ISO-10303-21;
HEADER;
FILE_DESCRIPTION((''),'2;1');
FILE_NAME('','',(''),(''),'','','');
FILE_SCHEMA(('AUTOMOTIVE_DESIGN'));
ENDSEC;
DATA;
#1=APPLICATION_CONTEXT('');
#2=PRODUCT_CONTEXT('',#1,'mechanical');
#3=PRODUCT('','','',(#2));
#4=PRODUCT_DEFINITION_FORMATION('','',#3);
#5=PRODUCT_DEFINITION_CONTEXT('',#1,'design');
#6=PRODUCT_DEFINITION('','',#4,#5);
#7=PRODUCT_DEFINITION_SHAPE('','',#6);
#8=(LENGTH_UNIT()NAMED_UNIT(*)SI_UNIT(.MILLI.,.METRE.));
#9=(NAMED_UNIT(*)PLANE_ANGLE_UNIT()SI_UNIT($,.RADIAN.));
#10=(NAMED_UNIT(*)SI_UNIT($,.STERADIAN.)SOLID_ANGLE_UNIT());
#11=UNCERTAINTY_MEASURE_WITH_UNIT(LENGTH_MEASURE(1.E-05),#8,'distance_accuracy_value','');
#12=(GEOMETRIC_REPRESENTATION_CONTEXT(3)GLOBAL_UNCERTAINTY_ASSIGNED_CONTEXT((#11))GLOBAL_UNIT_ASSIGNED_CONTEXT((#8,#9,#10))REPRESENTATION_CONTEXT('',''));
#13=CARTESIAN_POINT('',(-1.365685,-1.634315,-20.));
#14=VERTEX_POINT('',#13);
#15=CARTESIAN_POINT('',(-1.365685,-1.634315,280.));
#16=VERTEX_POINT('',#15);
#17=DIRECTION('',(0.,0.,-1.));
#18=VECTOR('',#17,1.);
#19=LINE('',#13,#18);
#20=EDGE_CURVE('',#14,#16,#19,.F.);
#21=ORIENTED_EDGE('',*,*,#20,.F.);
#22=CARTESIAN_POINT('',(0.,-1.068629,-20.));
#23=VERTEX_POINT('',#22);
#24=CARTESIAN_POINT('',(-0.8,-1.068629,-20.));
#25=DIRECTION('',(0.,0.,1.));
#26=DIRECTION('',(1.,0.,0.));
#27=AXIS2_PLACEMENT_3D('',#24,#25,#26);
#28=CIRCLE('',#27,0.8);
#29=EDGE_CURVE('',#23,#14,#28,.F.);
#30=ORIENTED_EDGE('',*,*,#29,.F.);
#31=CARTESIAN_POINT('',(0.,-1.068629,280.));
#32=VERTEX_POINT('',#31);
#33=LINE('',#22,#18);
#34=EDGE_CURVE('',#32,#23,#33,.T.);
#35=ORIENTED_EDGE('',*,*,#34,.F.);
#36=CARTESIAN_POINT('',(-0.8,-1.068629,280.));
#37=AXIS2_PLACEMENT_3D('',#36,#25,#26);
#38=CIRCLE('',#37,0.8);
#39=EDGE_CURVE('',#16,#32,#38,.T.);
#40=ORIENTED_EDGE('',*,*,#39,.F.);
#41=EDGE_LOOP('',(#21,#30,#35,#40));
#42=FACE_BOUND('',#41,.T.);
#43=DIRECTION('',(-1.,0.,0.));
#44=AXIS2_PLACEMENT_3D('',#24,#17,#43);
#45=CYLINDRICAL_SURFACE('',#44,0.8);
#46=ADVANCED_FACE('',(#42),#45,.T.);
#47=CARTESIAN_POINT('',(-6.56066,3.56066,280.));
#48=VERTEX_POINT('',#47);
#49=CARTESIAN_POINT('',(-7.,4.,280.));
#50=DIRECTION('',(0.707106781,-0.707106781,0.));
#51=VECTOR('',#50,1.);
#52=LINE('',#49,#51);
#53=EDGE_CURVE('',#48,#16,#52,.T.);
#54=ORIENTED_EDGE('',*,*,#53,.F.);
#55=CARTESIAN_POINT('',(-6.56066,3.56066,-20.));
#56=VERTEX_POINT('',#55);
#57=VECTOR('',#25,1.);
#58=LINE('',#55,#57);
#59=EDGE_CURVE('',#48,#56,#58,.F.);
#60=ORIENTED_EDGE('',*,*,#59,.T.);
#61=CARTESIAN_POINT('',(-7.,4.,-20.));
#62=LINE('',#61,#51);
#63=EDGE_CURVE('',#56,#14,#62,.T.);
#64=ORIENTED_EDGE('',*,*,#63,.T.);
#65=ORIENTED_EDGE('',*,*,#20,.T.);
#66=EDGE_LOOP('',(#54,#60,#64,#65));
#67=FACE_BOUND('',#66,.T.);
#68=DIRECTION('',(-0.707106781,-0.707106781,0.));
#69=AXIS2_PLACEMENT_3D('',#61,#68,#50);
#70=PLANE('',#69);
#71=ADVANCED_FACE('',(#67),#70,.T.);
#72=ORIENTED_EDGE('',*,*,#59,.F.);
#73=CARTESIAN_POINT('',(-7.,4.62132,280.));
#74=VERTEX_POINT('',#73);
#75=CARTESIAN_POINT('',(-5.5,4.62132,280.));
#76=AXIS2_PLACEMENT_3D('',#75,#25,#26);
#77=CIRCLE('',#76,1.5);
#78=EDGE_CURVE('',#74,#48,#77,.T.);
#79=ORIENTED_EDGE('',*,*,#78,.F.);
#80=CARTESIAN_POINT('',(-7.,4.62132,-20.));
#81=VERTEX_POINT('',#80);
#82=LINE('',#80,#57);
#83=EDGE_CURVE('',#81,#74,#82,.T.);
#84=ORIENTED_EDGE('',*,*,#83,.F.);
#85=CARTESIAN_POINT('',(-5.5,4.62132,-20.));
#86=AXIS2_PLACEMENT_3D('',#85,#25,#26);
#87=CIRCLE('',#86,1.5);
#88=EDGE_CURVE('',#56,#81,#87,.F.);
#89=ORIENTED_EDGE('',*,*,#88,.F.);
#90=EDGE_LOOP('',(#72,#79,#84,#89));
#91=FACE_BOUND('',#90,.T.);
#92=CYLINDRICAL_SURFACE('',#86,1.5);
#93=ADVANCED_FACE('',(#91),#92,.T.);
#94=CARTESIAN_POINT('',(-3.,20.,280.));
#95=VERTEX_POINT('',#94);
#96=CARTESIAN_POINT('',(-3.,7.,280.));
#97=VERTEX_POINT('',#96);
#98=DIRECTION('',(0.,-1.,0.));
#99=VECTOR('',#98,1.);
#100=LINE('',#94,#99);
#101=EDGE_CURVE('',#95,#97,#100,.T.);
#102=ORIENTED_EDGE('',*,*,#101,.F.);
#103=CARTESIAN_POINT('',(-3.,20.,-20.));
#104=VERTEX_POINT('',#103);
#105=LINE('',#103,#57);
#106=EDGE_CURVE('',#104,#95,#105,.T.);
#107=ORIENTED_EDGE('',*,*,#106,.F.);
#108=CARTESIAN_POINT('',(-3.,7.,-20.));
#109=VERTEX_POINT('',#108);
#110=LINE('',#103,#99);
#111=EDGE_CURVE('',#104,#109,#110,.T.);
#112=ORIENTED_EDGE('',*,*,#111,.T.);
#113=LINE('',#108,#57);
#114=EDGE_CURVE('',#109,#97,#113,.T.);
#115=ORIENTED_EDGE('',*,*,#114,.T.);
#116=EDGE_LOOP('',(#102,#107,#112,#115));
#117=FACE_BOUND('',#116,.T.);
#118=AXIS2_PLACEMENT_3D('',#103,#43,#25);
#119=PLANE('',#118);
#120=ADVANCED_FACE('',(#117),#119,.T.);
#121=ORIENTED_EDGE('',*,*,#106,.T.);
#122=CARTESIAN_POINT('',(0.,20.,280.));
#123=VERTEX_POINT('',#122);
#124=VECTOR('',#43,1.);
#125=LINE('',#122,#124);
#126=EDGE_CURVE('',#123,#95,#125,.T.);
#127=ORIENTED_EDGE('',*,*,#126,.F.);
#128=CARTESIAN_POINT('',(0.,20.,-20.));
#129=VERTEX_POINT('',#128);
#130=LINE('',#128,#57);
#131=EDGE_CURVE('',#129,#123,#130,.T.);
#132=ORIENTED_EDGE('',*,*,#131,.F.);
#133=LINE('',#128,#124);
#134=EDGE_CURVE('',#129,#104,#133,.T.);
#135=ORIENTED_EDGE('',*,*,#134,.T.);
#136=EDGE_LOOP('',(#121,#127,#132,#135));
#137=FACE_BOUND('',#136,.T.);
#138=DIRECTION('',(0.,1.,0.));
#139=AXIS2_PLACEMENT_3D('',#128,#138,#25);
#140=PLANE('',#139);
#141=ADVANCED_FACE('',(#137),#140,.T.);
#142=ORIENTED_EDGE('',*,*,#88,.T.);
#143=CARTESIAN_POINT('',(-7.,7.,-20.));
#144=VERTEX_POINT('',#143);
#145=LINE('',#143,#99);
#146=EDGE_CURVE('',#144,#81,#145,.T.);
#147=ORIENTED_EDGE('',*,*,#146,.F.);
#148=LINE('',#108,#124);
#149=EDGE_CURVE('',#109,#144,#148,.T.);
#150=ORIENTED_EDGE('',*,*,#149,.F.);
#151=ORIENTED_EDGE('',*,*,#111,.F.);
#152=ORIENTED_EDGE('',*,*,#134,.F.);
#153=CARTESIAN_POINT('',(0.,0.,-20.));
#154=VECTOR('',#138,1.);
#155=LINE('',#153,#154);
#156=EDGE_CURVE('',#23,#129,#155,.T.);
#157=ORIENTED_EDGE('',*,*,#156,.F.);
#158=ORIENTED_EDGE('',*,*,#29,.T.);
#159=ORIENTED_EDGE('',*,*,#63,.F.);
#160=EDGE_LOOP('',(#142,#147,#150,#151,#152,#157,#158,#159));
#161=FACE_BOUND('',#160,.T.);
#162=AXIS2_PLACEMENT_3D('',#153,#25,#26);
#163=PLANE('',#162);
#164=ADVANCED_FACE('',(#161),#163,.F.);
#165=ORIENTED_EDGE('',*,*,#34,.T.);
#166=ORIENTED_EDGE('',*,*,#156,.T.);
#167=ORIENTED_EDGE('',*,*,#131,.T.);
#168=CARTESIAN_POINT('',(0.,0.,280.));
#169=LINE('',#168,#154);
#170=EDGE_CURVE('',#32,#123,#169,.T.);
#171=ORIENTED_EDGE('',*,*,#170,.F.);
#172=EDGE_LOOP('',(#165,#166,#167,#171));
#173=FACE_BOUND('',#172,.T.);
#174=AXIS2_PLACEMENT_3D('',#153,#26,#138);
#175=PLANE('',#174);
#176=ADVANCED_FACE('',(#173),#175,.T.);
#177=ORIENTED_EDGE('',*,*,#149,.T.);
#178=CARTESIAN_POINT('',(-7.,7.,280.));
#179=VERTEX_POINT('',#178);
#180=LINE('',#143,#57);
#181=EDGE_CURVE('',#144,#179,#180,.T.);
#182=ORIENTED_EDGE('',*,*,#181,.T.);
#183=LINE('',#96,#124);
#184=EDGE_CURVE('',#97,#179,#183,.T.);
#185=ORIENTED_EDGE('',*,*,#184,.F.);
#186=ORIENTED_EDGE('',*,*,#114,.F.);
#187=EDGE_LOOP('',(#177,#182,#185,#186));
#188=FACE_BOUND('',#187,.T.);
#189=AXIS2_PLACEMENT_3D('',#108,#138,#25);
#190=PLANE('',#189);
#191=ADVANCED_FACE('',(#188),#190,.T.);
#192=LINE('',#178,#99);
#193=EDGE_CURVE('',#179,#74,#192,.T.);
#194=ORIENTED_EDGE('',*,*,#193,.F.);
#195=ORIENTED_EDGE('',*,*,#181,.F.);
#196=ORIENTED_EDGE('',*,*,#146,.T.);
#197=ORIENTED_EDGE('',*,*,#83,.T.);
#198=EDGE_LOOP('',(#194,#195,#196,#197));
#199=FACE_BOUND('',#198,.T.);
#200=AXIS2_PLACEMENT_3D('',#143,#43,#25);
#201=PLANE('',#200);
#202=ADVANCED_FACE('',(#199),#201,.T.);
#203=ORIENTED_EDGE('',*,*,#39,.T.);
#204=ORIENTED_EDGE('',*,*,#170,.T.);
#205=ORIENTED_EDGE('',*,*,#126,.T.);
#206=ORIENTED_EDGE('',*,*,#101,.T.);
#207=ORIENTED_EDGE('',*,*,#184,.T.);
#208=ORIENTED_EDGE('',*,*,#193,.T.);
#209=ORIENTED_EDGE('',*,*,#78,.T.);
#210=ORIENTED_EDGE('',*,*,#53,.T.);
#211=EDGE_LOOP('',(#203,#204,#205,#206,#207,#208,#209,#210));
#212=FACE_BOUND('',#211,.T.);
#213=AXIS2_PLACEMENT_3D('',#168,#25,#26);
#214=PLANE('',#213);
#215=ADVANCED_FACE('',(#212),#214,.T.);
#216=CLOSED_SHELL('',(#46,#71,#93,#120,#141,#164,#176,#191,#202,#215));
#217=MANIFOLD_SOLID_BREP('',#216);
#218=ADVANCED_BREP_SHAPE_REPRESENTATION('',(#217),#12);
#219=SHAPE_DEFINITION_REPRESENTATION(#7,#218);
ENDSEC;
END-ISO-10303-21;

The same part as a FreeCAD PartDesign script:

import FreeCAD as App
import Part
import Sketcher
from FreeCAD import Vector
Q = App.Units.Quantity


def edges_at(feature, points):
    """Names of the edges that pass closest to the given points."""
    edges = feature.Shape.Edges
    near = lambda p: min(range(len(edges)), key=lambda i: edges[i].distToShape(Part.Vertex(*p))[0])
    return sorted({f"Edge{near(p) + 1}" for p in points})

doc = App.newDocument("Part")
body = doc.addObject("PartDesign::Body", "Body")

# Sketch on XY plane
sketch1 = body.newObject("Sketcher::SketchObject", "Sketch")
sketch1.AttachmentSupport = (doc.getObject("XY_Plane"), [""])
sketch1.MapMode = "FlatFace"
sketch1.AttachmentOffset = App.Placement(Vector(0, 0, 280), App.Rotation())
sketch1.addGeometry([
    Part.LineSegment(Vector(-7, 4, 0), Vector(4, -7, 0)),  # 0
    Part.LineSegment(Vector(4, -7, 0), Vector(7, -7, 0)),  # 1
    Part.LineSegment(Vector(7, -7, 0), Vector(7, -3, 0)),  # 2
    Part.LineSegment(Vector(7, -3, 0), Vector(20, -3, 0)),  # 3
    Part.LineSegment(Vector(20, -3, 0), Vector(20, 0, 0)),  # 4
    Part.LineSegment(Vector(20, 0, 0), Vector(0, 0, 0)),  # 5
    Part.LineSegment(Vector(0, 0, 0), Vector(0, 20, 0)),  # 6
    Part.LineSegment(Vector(0, 20, 0), Vector(-3, 20, 0)),  # 7
    Part.LineSegment(Vector(-3, 20, 0), Vector(-3, 7, 0)),  # 8
    Part.LineSegment(Vector(-3, 7, 0), Vector(-7, 7, 0)),  # 9
    Part.LineSegment(Vector(-7, 7, 0), Vector(-7, 4, 0)),  # 10
], False)
sketch1.addConstraint([
    Sketcher.Constraint("Coincident", 0, 2, 1, 1),
    Sketcher.Constraint("Coincident", 1, 2, 2, 1),
    Sketcher.Constraint("Coincident", 2, 2, 3, 1),
    Sketcher.Constraint("Coincident", 3, 2, 4, 1),
    Sketcher.Constraint("Coincident", 4, 2, 5, 1),
    Sketcher.Constraint("Coincident", 5, 2, 6, 1),
    Sketcher.Constraint("Coincident", 6, 2, 7, 1),
    Sketcher.Constraint("Coincident", 7, 2, 8, 1),
    Sketcher.Constraint("Coincident", 8, 2, 9, 1),
    Sketcher.Constraint("Coincident", 9, 2, 10, 1),
    Sketcher.Constraint("Coincident", 10, 2, 0, 1),
    Sketcher.Constraint("Horizontal", 1),
    Sketcher.Constraint("Vertical", 2),
    Sketcher.Constraint("Horizontal", 3),
    Sketcher.Constraint("Vertical", 4),
    Sketcher.Constraint("Horizontal", 5),
    Sketcher.Constraint("Vertical", 6),
    Sketcher.Constraint("Horizontal", 7),
    Sketcher.Constraint("Vertical", 8),
    Sketcher.Constraint("Horizontal", 9),
    Sketcher.Constraint("Vertical", 10),
    Sketcher.Constraint("Coincident", 5, 2, -1, 1),
    Sketcher.Constraint("Symmetric", 1, 2, 9, 2, -1, 1),
    Sketcher.Constraint("Equal", 1, 7),
    Sketcher.Constraint("Equal", 9, 2),
    Sketcher.Constraint("Equal", 7, 4),
    Sketcher.Constraint("Equal", 5, 6),
    Sketcher.Constraint("Equal", 4, 10),
    Sketcher.Constraint("DistanceX", 1, 1, 1, 2, Q("3 mm")),
    Sketcher.Constraint("DistanceX", 3, 1, 3, 2, Q("13 mm")),
    Sketcher.Constraint("DistanceX", 5, 2, 5, 1, Q("20 mm")),
])
pad1 = body.newObject("PartDesign::Pad", "Pad")
pad1.Profile = sketch1
pad1.Length = 300
pad1.Reversed = True
doc.recompute()

fillet = body.newObject("PartDesign::Fillet", "Fillet")
fillet.Base = (pad1, edges_at(pad1, [(4, -7, 130), (-7, 4, 130)]))
fillet.Radius = 1.5

# Sketch on XZ plane
sketch2 = body.newObject("Sketcher::SketchObject", "Sketch001")
sketch2.AttachmentSupport = (doc.getObject("XZ_Plane"), [""])
sketch2.MapMode = "FlatFace"
sketch2.addGeometry([
    Part.LineSegment(Vector(0, -20, 0), Vector(0, 280, 0)),
    Part.LineSegment(Vector(0, 280, 0), Vector(20, 280, 0)),
    Part.LineSegment(Vector(20, 280, 0), Vector(20, -20, 0)),
    Part.LineSegment(Vector(20, -20, 0), Vector(0, -20, 0)),
], False)
sketch2.addConstraint([
    Sketcher.Constraint("Coincident", 0, 2, 1, 1),
    Sketcher.Constraint("Coincident", 1, 2, 2, 1),
    Sketcher.Constraint("Coincident", 2, 2, 3, 1),
    Sketcher.Constraint("Coincident", 3, 2, 0, 1),
    Sketcher.Constraint("Vertical", 0),
    Sketcher.Constraint("Horizontal", 1),
    Sketcher.Constraint("Vertical", 2),
    Sketcher.Constraint("Horizontal", 3),
    Sketcher.Constraint("PointOnObject", 0, 2, -2),
    Sketcher.Constraint("DistanceX", 1, 1, 1, 2, Q("20 mm")),
    Sketcher.Constraint("DistanceY", 0, 1, 0, 2, Q("300 mm")),
    Sketcher.Constraint("DistanceY", -1, 1, 0, 2, Q("280 mm")),
])
pocket1 = body.newObject("PartDesign::Pocket", "Pocket")
pocket1.Profile = sketch2
pocket1.Length = 10
pocket1.Reversed = True
doc.recompute()

fillet2 = body.newObject("PartDesign::Fillet", "Fillet001")
fillet2.Base = (pocket1, edges_at(pocket1, [(0, -3, 130)]))
fillet2.Radius = 0.8

doc.recompute()
